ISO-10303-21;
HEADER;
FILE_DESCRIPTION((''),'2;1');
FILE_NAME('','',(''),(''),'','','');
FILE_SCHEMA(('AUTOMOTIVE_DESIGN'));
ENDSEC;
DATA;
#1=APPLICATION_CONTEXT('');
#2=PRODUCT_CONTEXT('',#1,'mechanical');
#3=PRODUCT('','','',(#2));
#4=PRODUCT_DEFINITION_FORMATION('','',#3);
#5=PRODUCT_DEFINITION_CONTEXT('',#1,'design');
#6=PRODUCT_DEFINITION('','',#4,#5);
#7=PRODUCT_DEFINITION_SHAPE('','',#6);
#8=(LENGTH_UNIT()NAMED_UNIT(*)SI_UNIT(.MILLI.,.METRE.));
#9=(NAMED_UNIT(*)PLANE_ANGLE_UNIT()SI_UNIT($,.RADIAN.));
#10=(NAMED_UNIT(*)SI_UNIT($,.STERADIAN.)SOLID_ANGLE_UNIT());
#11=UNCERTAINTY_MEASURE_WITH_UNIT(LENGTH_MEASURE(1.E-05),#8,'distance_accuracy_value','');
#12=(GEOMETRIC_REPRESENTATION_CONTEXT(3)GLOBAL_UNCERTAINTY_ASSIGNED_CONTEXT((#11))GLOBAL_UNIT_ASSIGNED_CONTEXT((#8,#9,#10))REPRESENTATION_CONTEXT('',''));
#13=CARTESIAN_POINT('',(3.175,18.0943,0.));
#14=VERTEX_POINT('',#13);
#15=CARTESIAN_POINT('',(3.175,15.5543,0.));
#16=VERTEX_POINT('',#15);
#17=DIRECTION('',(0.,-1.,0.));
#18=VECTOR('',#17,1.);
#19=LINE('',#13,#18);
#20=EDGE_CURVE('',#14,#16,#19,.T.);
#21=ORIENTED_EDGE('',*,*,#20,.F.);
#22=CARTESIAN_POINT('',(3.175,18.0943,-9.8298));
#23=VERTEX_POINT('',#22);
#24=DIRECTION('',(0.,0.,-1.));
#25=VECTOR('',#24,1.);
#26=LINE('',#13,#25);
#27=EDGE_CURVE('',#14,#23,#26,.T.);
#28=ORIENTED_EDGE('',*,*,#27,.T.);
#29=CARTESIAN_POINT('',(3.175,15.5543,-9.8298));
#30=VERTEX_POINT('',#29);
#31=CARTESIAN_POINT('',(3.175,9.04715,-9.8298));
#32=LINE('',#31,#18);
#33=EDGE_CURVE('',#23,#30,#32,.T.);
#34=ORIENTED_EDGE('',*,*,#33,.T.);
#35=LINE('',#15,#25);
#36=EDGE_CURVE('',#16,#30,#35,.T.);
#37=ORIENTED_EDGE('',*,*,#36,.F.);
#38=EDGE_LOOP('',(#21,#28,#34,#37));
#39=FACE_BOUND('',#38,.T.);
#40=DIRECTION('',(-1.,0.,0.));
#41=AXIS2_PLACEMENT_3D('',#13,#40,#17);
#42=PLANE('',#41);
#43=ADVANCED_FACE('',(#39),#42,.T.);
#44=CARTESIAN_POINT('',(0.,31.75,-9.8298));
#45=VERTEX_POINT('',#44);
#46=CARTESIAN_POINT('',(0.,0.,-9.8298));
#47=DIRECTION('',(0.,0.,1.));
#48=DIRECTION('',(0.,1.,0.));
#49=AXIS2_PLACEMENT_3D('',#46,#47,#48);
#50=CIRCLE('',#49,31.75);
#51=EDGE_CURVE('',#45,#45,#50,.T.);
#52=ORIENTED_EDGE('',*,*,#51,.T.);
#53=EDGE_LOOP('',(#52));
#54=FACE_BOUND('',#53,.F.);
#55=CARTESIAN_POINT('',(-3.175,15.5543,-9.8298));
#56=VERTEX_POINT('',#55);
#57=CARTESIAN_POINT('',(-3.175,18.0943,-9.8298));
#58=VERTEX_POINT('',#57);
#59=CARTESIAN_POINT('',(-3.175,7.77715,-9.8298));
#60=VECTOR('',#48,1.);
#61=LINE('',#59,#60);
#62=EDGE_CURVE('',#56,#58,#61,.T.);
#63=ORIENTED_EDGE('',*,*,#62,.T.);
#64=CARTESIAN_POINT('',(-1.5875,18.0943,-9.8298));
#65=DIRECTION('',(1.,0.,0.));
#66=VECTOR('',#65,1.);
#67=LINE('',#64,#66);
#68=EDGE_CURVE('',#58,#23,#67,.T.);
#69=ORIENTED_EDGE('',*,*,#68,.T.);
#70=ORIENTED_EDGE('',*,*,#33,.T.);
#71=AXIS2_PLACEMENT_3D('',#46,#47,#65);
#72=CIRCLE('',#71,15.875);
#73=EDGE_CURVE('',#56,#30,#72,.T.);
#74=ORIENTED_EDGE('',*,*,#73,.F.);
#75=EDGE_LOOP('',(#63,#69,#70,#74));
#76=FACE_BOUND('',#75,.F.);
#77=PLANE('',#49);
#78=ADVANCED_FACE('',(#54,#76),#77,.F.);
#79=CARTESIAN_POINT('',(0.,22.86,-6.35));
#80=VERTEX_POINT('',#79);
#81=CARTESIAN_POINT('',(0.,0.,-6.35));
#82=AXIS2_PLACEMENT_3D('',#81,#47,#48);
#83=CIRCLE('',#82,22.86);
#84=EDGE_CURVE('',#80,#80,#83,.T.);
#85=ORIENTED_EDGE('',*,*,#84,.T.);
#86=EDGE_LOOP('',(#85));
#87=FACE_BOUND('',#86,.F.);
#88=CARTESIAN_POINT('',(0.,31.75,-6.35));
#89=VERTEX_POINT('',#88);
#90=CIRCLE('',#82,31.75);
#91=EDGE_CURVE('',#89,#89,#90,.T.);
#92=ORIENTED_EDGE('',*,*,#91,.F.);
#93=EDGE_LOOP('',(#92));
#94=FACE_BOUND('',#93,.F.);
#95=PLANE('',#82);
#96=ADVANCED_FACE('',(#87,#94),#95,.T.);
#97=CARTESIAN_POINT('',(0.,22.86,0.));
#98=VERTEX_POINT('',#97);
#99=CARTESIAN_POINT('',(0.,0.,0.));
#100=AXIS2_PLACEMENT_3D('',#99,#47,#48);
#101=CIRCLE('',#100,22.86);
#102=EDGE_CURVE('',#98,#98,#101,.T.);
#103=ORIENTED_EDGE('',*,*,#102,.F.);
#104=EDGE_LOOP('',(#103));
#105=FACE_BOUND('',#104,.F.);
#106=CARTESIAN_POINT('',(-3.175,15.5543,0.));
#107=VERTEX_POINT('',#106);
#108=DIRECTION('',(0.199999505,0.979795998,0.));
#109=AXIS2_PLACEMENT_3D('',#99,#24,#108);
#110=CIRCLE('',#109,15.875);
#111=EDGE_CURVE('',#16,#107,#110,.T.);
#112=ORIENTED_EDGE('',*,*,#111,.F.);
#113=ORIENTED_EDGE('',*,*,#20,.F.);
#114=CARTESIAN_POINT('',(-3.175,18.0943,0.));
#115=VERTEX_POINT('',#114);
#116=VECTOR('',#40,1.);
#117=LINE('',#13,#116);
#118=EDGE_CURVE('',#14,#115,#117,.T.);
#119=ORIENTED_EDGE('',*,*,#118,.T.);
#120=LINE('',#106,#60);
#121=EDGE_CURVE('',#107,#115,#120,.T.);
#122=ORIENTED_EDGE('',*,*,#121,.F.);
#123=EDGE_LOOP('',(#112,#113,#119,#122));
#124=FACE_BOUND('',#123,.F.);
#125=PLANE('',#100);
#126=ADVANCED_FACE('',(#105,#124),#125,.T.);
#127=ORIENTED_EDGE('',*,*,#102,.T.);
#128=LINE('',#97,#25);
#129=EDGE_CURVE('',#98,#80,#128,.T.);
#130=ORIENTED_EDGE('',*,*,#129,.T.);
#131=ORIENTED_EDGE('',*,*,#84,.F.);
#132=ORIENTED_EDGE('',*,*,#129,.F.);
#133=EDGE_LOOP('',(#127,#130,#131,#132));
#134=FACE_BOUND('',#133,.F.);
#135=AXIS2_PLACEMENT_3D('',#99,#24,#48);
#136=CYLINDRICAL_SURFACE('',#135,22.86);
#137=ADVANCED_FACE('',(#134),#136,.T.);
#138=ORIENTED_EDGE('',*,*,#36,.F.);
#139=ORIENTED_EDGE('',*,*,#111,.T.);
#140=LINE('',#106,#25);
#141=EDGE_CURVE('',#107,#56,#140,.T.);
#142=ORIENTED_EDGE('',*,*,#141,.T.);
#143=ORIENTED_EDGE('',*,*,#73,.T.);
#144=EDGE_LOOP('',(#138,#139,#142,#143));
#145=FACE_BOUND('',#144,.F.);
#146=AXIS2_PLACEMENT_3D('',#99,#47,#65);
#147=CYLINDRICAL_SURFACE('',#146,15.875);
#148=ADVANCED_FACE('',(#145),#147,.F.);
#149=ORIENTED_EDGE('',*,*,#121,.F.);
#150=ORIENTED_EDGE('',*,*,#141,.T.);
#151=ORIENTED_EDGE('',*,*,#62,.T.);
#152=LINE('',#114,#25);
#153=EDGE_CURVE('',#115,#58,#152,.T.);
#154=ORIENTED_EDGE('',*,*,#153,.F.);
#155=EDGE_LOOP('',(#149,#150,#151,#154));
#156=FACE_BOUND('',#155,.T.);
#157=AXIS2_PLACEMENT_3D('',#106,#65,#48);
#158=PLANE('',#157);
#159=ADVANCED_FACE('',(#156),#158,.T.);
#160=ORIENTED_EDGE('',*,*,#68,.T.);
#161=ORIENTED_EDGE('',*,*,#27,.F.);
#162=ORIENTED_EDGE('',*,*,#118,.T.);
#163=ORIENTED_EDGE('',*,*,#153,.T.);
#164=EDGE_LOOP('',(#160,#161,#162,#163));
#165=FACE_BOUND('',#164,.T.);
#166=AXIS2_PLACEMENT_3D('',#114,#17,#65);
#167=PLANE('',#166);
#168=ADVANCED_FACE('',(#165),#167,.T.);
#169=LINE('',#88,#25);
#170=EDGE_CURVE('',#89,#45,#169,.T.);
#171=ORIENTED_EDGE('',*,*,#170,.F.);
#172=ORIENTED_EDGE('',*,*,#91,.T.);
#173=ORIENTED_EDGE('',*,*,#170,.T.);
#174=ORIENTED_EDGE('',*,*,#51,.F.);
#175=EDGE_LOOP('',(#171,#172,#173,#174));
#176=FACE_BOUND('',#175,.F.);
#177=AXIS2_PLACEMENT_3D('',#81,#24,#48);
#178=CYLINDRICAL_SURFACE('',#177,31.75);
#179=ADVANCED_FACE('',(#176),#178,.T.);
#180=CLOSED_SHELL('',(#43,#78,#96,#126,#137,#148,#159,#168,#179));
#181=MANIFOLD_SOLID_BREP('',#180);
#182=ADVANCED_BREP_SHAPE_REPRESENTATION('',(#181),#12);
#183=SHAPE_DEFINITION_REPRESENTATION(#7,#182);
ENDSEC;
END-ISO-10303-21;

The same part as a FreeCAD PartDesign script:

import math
import FreeCAD as App
import Part
import Sketcher
from FreeCAD import Vector
Q = App.Units.Quantity


def add_polygon(sketch, points):
    """Adds a closed chain of lines whose ends are joined by coincident constraints."""
    first, n = sketch.GeometryCount, len(points)
    for a, b in zip(points, points[1:] + points[:1]):
        sketch.addGeometry(Part.LineSegment(App.Vector(*a, 0), App.Vector(*b, 0)), False)
    for i in range(n):
        sketch.addConstraint(Sketcher.Constraint("Coincident", first + i, 2, first + (i + 1) % n, 1))

doc = App.newDocument("Part")
body = doc.addObject("PartDesign::Body", "Body")

# Sketch on YZ plane
sketch1 = doc.addObject("Sketcher::SketchObject", "Sketch")
body.addObject(sketch1)
sketch1.AttachmentSupport = (doc.YZ_Plane, [""])
sketch1.MapMode = "FlatFace"
add_polygon(sketch1, [(22.9, 0), (0, 0), (0, -9.8), (31.8, -9.8), (31.8, -6.3), (22.9, -6.3)])  # lines 0-5
sketch1.addConstraint([
    Sketcher.Constraint("Horizontal", 0),
    Sketcher.Constraint("Vertical", 1),
    Sketcher.Constraint("Horizontal", 2),
    Sketcher.Constraint("Vertical", 3),
    Sketcher.Constraint("Horizontal", 4),
    Sketcher.Constraint("Vertical", 5),
    Sketcher.Constraint("Coincident", 0, 2, -1, 1),
    Sketcher.Constraint("DistanceX", 0, 2, 0, 1, Q("0.9 in")),
    Sketcher.Constraint("DistanceX", 4, 2, 4, 1, Q("0.35 in")),
    Sketcher.Constraint("DistanceY", 5, 1, 5, 2, Q("0.25 in")),
    Sketcher.Constraint("DistanceY", 3, 1, 3, 2, Q("0.137 in")),
])
revolution = doc.addObject("PartDesign::Revolution", "Revolution")
body.addObject(revolution)
revolution.Profile = sketch1
revolution.ReferenceAxis = (sketch1, ["V_Axis"])
revolution.Angle = 360

# Sketch on XY plane
sketch2 = doc.addObject("Sketcher::SketchObject", "Sketch001")
body.addObject(sketch2)
sketch2.AttachmentSupport = (doc.XY_Plane, [""])
sketch2.MapMode = "FlatFace"
sketch2.addGeometry([
    Part.ArcOfCircle(Part.Circle(Vector(0, 0, 0), Vector(0, 0, 1), 15.9), math.radians(102), math.radians(438)),
    Part.LineSegment(Vector(3.2, 15.6, 0), Vector(3.2, 18.1, 0)),
    Part.LineSegment(Vector(3.2, 18.1, 0), Vector(-3.2, 18.1, 0)),
    Part.LineSegment(Vector(-3.2, 18.1, 0), Vector(-3.2, 15.6, 0)),
], False)
sketch2.addConstraint([
    Sketcher.Constraint("Coincident", 0, 2, 1, 1),
    Sketcher.Constraint("Coincident", 1, 2, 2, 1),
    Sketcher.Constraint("Coincident", 2, 2, 3, 1),
    Sketcher.Constraint("Coincident", 3, 2, 0, 1),
    Sketcher.Constraint("Vertical", 1),
    Sketcher.Constraint("Horizontal", 2),
    Sketcher.Constraint("Vertical", 3),
    Sketcher.Constraint("Coincident", 0, 3, -1, 1),
    Sketcher.Constraint("Horizontal", 0, 2, 3, 2),
    Sketcher.Constraint("DistanceY", 1, 1, 1, 2, Q("0.1 in")),
    Sketcher.Constraint("Radius", 0, Q("0.625 in")),
    Sketcher.Constraint("DistanceX", 2, 2, 2, 1, Q("0.25 in")),
])
pocket1 = doc.addObject("PartDesign::Pocket", "Pocket")
body.addObject(pocket1)
pocket1.Profile = sketch2
pocket1.Type = "ThroughAll"

doc.recompute()
